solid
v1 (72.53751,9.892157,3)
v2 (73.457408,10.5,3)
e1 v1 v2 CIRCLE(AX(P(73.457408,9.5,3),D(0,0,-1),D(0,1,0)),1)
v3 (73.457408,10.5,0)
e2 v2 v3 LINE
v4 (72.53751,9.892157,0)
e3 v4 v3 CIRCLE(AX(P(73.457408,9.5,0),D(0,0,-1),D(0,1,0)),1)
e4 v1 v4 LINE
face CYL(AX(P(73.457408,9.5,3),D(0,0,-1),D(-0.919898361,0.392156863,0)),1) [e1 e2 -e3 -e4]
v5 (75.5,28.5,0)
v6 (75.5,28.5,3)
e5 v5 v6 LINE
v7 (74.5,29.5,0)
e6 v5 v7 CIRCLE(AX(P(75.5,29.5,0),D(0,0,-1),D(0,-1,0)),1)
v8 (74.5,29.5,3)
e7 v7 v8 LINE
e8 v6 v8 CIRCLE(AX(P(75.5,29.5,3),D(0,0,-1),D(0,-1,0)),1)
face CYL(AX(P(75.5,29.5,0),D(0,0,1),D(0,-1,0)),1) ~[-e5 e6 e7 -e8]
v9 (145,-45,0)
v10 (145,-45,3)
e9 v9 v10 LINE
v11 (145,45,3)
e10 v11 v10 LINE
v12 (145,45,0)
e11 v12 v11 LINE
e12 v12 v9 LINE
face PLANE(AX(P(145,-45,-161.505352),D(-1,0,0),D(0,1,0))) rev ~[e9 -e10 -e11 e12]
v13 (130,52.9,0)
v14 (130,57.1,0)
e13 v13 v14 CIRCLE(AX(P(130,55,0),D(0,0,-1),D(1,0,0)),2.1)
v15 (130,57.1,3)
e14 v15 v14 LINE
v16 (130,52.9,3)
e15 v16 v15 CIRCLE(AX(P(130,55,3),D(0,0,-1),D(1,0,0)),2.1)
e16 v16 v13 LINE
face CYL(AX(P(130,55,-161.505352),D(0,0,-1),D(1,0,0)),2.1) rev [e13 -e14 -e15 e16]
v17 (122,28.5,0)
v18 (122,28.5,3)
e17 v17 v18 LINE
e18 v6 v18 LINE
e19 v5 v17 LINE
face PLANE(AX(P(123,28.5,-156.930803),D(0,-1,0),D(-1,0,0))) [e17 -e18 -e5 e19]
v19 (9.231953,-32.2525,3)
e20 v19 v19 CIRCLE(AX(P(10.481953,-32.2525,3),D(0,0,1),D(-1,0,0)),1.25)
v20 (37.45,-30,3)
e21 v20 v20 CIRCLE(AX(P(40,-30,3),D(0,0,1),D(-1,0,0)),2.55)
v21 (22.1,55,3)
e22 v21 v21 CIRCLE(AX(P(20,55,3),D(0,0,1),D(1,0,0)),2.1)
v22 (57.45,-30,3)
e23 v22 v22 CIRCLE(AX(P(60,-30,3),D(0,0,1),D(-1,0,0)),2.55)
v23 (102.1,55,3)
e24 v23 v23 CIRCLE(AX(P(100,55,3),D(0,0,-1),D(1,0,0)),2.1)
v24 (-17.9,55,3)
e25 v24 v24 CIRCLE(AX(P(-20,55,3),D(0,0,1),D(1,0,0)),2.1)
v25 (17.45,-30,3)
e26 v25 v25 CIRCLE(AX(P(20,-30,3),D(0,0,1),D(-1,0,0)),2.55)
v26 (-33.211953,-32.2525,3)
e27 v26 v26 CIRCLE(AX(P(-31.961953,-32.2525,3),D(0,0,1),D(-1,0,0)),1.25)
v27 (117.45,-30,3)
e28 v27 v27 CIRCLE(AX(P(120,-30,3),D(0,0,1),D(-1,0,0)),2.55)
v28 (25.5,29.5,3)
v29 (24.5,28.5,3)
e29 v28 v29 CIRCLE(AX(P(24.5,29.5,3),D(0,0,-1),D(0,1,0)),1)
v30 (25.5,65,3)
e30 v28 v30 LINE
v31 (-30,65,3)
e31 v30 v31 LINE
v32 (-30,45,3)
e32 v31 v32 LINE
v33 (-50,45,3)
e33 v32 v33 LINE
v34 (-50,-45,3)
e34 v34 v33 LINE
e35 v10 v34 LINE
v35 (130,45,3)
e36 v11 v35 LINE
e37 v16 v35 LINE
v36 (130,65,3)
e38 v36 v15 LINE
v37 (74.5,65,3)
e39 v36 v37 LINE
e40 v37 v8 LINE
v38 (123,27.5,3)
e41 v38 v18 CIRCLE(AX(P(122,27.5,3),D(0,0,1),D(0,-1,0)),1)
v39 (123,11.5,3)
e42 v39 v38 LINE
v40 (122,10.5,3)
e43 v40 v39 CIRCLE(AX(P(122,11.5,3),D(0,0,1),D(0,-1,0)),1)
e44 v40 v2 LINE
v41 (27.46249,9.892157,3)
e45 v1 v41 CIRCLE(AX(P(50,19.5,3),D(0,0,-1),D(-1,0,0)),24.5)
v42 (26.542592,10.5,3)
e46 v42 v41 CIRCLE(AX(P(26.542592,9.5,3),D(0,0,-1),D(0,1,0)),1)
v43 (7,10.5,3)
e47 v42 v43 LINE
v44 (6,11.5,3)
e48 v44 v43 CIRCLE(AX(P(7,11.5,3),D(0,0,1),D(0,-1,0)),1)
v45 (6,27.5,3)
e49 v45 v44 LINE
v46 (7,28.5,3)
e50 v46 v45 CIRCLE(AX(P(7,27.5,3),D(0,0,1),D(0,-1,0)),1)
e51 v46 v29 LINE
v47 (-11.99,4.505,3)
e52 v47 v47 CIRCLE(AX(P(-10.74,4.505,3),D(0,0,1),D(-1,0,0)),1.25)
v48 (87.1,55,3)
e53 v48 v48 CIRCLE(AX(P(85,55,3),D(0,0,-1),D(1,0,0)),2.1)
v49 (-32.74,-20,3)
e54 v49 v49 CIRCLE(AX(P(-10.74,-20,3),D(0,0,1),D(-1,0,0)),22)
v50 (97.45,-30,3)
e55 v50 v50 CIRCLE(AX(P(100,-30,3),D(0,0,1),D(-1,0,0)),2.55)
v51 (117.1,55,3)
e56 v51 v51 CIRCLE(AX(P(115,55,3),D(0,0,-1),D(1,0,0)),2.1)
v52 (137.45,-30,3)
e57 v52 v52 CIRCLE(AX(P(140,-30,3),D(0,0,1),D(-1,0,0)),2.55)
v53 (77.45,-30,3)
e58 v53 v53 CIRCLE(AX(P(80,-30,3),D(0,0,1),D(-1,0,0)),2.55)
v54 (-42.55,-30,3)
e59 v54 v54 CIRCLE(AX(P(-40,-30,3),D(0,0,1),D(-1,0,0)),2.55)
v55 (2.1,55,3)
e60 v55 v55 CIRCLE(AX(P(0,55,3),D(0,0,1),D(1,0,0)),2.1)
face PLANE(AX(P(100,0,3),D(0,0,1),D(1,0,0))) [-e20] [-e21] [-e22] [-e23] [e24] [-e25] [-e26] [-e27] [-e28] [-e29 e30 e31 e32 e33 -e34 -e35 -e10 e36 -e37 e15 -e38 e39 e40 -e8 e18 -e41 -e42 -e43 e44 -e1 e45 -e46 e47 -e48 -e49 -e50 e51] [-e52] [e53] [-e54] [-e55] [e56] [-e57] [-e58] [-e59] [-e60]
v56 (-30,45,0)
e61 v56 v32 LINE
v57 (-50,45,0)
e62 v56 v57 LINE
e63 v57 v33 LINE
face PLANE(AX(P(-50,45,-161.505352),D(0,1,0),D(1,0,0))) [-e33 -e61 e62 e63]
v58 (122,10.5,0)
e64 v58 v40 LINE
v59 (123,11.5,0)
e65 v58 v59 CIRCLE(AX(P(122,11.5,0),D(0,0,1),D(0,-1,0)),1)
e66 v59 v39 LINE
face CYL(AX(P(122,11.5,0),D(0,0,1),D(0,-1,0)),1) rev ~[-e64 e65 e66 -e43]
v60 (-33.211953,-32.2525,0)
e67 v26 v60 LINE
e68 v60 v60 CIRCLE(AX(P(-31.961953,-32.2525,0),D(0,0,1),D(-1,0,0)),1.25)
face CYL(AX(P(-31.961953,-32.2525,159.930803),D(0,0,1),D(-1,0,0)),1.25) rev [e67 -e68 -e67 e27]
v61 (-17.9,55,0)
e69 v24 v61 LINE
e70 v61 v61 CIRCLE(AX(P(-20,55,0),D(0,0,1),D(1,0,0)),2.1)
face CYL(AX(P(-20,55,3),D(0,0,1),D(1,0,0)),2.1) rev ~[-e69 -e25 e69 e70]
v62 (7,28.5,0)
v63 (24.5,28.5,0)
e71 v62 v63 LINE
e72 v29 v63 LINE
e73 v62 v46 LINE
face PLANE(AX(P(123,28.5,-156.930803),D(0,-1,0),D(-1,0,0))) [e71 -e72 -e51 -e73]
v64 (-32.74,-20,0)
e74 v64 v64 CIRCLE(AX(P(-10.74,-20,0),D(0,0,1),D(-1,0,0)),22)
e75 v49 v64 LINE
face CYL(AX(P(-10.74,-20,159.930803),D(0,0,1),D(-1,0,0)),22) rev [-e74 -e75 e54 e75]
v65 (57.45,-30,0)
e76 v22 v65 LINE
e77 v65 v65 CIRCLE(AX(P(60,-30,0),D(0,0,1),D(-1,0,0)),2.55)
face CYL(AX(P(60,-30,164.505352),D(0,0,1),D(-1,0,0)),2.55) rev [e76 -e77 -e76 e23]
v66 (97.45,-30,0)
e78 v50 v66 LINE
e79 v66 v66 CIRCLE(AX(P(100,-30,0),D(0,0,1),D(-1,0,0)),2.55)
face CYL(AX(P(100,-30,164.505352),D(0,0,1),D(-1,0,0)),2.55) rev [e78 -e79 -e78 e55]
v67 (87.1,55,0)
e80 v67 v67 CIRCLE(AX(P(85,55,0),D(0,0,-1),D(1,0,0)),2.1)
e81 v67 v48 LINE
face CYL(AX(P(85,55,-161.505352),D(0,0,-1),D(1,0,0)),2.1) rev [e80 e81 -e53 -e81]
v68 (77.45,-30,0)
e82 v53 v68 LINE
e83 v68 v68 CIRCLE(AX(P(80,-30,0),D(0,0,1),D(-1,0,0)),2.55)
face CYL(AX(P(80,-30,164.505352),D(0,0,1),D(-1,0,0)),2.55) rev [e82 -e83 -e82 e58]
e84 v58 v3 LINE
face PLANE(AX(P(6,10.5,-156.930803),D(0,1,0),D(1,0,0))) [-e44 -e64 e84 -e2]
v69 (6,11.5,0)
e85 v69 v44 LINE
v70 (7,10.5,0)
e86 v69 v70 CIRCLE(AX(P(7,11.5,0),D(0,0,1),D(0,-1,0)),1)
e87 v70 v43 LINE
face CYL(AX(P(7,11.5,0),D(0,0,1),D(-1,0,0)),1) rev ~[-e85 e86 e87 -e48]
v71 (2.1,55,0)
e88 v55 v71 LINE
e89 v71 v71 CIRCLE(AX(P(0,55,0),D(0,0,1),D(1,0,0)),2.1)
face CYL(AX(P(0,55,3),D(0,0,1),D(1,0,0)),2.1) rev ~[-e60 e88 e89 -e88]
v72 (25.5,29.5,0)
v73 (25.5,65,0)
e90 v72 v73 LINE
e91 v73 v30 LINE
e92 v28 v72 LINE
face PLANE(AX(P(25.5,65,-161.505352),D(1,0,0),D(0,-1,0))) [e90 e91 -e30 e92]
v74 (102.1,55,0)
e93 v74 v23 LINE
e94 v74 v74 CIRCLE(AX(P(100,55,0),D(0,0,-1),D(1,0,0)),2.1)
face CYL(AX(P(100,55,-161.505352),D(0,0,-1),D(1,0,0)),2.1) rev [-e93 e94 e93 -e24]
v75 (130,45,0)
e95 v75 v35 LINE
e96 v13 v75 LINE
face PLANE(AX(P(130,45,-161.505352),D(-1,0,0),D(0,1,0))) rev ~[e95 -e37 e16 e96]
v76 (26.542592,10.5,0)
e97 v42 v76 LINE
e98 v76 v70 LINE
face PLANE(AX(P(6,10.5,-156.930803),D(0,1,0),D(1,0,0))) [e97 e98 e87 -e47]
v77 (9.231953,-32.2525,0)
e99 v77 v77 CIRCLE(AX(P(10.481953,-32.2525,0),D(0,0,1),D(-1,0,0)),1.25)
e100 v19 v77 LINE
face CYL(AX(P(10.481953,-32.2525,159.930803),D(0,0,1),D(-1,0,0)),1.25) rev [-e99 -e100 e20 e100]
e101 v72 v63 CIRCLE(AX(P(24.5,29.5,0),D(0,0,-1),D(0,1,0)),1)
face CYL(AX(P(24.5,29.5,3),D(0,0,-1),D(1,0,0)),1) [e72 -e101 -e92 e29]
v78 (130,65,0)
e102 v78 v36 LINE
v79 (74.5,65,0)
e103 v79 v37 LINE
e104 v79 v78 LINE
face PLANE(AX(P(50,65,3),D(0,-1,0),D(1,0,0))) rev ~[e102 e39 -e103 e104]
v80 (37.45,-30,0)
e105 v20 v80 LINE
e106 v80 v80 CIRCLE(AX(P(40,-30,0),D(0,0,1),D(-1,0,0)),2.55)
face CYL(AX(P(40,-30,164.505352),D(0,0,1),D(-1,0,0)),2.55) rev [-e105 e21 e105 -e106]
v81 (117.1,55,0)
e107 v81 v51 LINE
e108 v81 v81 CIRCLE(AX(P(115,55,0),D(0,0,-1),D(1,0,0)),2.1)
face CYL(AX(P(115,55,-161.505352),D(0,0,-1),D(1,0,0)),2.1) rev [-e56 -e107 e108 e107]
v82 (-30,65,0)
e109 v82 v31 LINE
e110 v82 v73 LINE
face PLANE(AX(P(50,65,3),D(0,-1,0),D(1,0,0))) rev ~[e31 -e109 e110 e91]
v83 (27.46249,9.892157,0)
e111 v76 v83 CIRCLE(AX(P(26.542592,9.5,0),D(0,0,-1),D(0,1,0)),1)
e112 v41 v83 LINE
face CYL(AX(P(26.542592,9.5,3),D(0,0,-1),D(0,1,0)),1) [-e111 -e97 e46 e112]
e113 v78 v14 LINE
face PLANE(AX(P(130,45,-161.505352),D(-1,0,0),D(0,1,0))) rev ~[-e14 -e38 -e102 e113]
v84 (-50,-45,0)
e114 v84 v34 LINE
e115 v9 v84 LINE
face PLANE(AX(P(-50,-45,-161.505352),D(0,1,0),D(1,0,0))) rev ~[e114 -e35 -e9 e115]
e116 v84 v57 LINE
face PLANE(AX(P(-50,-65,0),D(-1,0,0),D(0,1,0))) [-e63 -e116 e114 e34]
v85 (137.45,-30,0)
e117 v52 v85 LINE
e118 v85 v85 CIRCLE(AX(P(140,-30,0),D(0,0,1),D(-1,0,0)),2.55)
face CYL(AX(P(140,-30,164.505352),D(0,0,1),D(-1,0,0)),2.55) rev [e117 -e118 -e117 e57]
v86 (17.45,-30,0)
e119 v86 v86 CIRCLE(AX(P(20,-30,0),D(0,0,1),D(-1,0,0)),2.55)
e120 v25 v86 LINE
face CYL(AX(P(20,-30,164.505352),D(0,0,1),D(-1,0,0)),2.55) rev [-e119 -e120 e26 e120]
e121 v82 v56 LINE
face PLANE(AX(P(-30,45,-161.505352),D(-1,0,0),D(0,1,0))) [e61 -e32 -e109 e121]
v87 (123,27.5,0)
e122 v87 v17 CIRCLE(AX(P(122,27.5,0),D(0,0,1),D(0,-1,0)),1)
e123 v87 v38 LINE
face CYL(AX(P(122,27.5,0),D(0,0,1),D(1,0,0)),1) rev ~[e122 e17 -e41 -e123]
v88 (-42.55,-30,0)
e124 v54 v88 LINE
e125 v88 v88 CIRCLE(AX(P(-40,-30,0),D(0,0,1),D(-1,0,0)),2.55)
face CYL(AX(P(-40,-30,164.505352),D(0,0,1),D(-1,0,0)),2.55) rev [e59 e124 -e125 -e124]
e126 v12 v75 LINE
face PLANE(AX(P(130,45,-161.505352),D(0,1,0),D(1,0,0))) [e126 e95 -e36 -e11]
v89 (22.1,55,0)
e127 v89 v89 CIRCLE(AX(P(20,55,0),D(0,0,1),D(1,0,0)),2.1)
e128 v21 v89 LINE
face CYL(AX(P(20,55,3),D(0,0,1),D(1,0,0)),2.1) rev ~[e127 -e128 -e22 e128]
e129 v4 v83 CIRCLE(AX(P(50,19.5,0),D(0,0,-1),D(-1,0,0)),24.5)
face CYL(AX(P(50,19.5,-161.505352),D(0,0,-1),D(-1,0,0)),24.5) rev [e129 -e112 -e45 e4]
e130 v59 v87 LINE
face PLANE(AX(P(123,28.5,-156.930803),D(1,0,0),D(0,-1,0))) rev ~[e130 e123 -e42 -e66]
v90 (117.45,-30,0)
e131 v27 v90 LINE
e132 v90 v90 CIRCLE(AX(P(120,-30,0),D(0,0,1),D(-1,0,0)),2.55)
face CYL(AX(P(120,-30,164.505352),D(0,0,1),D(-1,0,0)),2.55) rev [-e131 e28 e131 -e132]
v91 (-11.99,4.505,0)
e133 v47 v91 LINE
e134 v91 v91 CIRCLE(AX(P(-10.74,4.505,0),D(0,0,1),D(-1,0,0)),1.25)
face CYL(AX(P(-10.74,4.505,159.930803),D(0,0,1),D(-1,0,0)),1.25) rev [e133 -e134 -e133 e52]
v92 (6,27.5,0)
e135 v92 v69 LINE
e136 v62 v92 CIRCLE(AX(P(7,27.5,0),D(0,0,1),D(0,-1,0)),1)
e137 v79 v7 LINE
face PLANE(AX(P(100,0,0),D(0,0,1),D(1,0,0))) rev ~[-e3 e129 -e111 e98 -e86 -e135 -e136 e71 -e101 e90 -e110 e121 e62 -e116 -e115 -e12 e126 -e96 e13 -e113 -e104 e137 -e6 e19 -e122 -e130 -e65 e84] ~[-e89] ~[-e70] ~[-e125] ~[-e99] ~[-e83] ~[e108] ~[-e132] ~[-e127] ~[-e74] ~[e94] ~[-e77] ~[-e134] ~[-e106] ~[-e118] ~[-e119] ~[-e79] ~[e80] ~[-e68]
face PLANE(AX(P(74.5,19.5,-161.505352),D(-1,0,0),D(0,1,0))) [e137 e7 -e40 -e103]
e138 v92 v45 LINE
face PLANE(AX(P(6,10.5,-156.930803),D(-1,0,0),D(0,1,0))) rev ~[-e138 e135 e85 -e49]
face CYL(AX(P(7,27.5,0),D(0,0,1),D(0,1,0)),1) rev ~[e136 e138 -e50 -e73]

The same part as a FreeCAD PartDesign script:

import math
import FreeCAD as App
import Part
import Sketcher

V = App.Vector
Q = App.Units.Quantity


def edges_at(feature, points):
    """Names of the edges that pass closest to the given points."""
    edges = feature.Shape.Edges
    near = lambda p: min(range(len(edges)), key=lambda i: edges[i].distToShape(Part.Vertex(*p))[0])
    return sorted({f"Edge{near(p) + 1}" for p in points})

doc = App.newDocument("Part")
body = doc.addObject("PartDesign::Body", "Body")

# Sketch on XY plane
sketch1 = body.newObject("Sketcher::SketchObject", "Sketch")
sketch1.AttachmentSupport = (doc.getObject("XY_Plane"), [""])
sketch1.MapMode = "FlatFace"
sketch1.addGeometry(Part.LineSegment(V(-50, 65, 0), V(-50, -65, 0)), False)
sketch1.addGeometry(Part.LineSegment(V(-50, -65, 0), V(50, -65, 0)), False)
sketch1.addGeometry(Part.LineSegment(V(50, -65, 0), V(50, 65, 0)), False)
sketch1.addGeometry(Part.LineSegment(V(50, 65, 0), V(-50, 65, 0)), False)
sketch1.addConstraint(Sketcher.Constraint("Coincident", 0, 2, 1, 1))
sketch1.addConstraint(Sketcher.Constraint("Coincident", 1, 2, 2, 1))
sketch1.addConstraint(Sketcher.Constraint("Coincident", 2, 2, 3, 1))
sketch1.addConstraint(Sketcher.Constraint("Coincident", 3, 2, 0, 1))
sketch1.addConstraint(Sketcher.Constraint("Vertical", 0))
sketch1.addConstraint(Sketcher.Constraint("Horizontal", 1))
sketch1.addConstraint(Sketcher.Constraint("Vertical", 2))
sketch1.addConstraint(Sketcher.Constraint("Horizontal", 3))
sketch1.addConstraint(Sketcher.Constraint("Symmetric", 0, 2, 2, 2, -1, 1))
sketch1.addConstraint(Sketcher.Constraint("DistanceX", 1, 1, 1, 2, Q("100 mm")))
sketch1.addConstraint(Sketcher.Constraint("DistanceY", 0, 2, 0, 1, Q("130 mm")))
pad1 = body.newObject("PartDesign::Pad", "Pad")
pad1.Profile = sketch1
pad1.Length = 3

# Sketch on XY plane
sketch2 = body.newObject("Sketcher::SketchObject", "Sketch001")
sketch2.AttachmentSupport = (doc.getObject("XY_Plane"), [""])
sketch2.MapMode = "FlatFace"
sketch2.AttachmentOffset = App.Placement(V(0, 0, 3), App.Rotation())
sketch2.addGeometry(Part.Circle(V(-40, 55, 0), V(0, 0, 1), 2.1), False)
sketch2.addGeometry(Part.Circle(V(-20, 55, 0), V(0, 0, 1), 2.1), False)
sketch2.addGeometry(Part.Circle(V(0, 55, 0), V(0, 0, 1), 2.1), False)
sketch2.addGeometry(Part.Circle(V(20, 55, 0), V(0, 0, 1), 2.1), False)
sketch2.addGeometry(Part.Circle(V(40, 55, 0), V(0, 0, 1), 2.1), False)
sketch2.addGeometry(Part.Circle(V(-40, -55, 0), V(0, 0, 1), 2.1), False)
sketch2.addGeometry(Part.Circle(V(40, -55, 0), V(0, 0, 1), 2.1), False)
sketch2.addGeometry(Part.Circle(V(20, -55, 0), V(0, 0, 1), 2.1), False)
sketch2.addGeometry(Part.Circle(V(0, -55, 0), V(0, 0, 1), 2.1), False)
sketch2.addGeometry(Part.Circle(V(-20, -55, 0), V(0, 0, 1), 2.1), False)
sketch2.addConstraint(Sketcher.Constraint("Equal", 0, 1))
sketch2.addConstraint(Sketcher.Constraint("Equal", 1, 2))
sketch2.addConstraint(Sketcher.Constraint("Equal", 2, 3))
sketch2.addConstraint(Sketcher.Constraint("Equal", 3, 4))
sketch2.addConstraint(Sketcher.Constraint("Equal", 4, 5))
sketch2.addConstraint(Sketcher.Constraint("Equal", 5, 6))
sketch2.addConstraint(Sketcher.Constraint("Equal", 6, 7))
sketch2.addConstraint(Sketcher.Constraint("Equal", 7, 8))
sketch2.addConstraint(Sketcher.Constraint("Equal", 8, 9))
sketch2.addConstraint(Sketcher.Constraint("Symmetric", 4, 3, 5, 3, -1, 1))
sketch2.addConstraint(Sketcher.Constraint("Symmetric", 0, 3, 6, 3, -1, 1))
sketch2.addConstraint(Sketcher.Constraint("Symmetric", 1, 3, 7, 3, -1, 1))
sketch2.addConstraint(Sketcher.Constraint("Symmetric", 2, 3, 8, 3, -1, 1))
sketch2.addConstraint(Sketcher.Constraint("Symmetric", 3, 3, 9, 3, -1, 1))
sketch2.addConstraint(Sketcher.Constraint("Symmetric", 1, 3, 3, 3, -2))
sketch2.addConstraint(Sketcher.Constraint("Symmetric", 0, 3, 4, 3, -2))
sketch2.addConstraint(Sketcher.Constraint("PointOnObject", 2, 3, -2))
sketch2.addConstraint(Sketcher.Constraint("Horizontal", 0, 3, 1, 3))
sketch2.addConstraint(Sketcher.Constraint("Horizontal", 1, 3, 2, 3))
sketch2.addConstraint(Sketcher.Constraint("Diameter", 0, Q("4.2 mm")))
sketch2.addConstraint(Sketcher.Constraint("DistanceX", 0, 3, -1, 1, Q("40 mm")))
sketch2.addConstraint(Sketcher.Constraint("DistanceY", -1, 1, 0, 3, Q("55 mm")))
sketch2.addConstraint(Sketcher.Constraint("DistanceX", 1, 3, -1, 1, Q("20 mm")))
pocket1 = body.newObject("PartDesign::Pocket", "Pocket")
pocket1.Profile = sketch2
pocket1.Type = "ThroughAll"

# Sketch on XY plane
sketch3 = body.newObject("Sketcher::SketchObject", "Sketch002")
sketch3.AttachmentSupport = (doc.getObject("XY_Plane"), [""])
sketch3.MapMode = "FlatFace"
sketch3.AttachmentOffset = App.Placement(V(0, 0, 3), App.Rotation())
sketch3.addGeometry(Part.LineSegment(V(50, 65, 0), V(50, -65, 0)), False)
sketch3.addGeometry(Part.LineSegment(V(50, -65, 0), V(150, -65, 0)), False)
sketch3.addGeometry(Part.LineSegment(V(150, -65, 0), V(150, 65, 0)), False)
sketch3.addGeometry(Part.LineSegment(V(150, 65, 0), V(50, 65, 0)), False)
sketch3.addConstraint(Sketcher.Constraint("Coincident", 0, 2, 1, 1))
sketch3.addConstraint(Sketcher.Constraint("Coincident", 1, 2, 2, 1))
sketch3.addConstraint(Sketcher.Constraint("Coincident", 2, 2, 3, 1))
sketch3.addConstraint(Sketcher.Constraint("Coincident", 3, 2, 0, 1))
sketch3.addConstraint(Sketcher.Constraint("Vertical", 0))
sketch3.addConstraint(Sketcher.Constraint("Horizontal", 1))
sketch3.addConstraint(Sketcher.Constraint("Vertical", 2))
sketch3.addConstraint(Sketcher.Constraint("Horizontal", 3))
sketch3.addConstraint(Sketcher.Constraint("DistanceX", 1, 1, 1, 2, Q("100 mm")))
sketch3.addConstraint(Sketcher.Constraint("DistanceY", 0, 2, 0, 1, Q("130 mm")))
sketch3.addConstraint(Sketcher.Constraint("DistanceX", -1, 1, 0, 2, Q("50 mm")))
sketch3.addConstraint(Sketcher.Constraint("DistanceY", 0, 2, -1, 1, Q("65 mm")))
pad2 = body.newObject("PartDesign::Pad", "Pad001")
pad2.Profile = sketch3
pad2.Length = 3
pad2.Reversed = True

# Sketch on XY plane
sketch4 = body.newObject("Sketcher::SketchObject", "Sketch003")
sketch4.AttachmentSupport = (doc.getObject("XY_Plane"), [""])
sketch4.MapMode = "FlatFace"
sketch4.AttachmentOffset = App.Placement(V(0, 0, 3), App.Rotation())
sketch4.addGeometry(Part.Circle(V(55, 55, 0), V(0, 0, 1), 2.1), False)
sketch4.addGeometry(Part.Circle(V(70, 55, 0), V(0, 0, 1), 2.1), False)
sketch4.addGeometry(Part.Circle(V(85, 55, 0), V(0, 0, 1), 2.1), False)
sketch4.addGeometry(Part.Circle(V(100, 55, 0), V(0, 0, 1), 2.1), False)
sketch4.addGeometry(Part.Circle(V(115, 55, 0), V(0, 0, 1), 2.1), False)
sketch4.addGeometry(Part.Circle(V(130, 55, 0), V(0, 0, 1), 2.1), False)
sketch4.addGeometry(Part.Circle(V(145, 55, 0), V(0, 0, 1), 2.1), False)
sketch4.addGeometry(Part.Circle(V(145, -55, 0), V(0, 0, 1), 2.1), False)
sketch4.addGeometry(Part.Circle(V(130, -55, 0), V(0, 0, 1), 2.1), False)
sketch4.addGeometry(Part.Circle(V(115, -55, 0), V(0, 0, 1), 2.1), False)
sketch4.addGeometry(Part.Circle(V(100, -55, 0), V(0, 0, 1), 2.1), False)
sketch4.addGeometry(Part.Circle(V(85, -55, 0), V(0, 0, 1), 2.1), False)
sketch4.addGeometry(Part.Circle(V(70, -55, 0), V(0, 0, 1), 2.1), False)
sketch4.addGeometry(Part.Circle(V(55, -55, 0), V(0, 0, 1), 2.1), False)
sketch4.addConstraint(Sketcher.Constraint("Equal", 0, 1))
sketch4.addConstraint(Sketcher.Constraint("Equal", 1, 2))
sketch4.addConstraint(Sketcher.Constraint("Equal", 2, 3))
sketch4.addConstraint(Sketcher.Constraint("Equal", 3, 4))
sketch4.addConstraint(Sketcher.Constraint("Equal", 4, 5))
sketch4.addConstraint(Sketcher.Constraint("Equal", 5, 6))
sketch4.addConstraint(Sketcher.Constraint("Equal", 6, 7))
sketch4.addConstraint(Sketcher.Constraint("Equal", 7, 8))
sketch4.addConstraint(Sketcher.Constraint("Equal", 8, 9))
sketch4.addConstraint(Sketcher.Constraint("Equal", 9, 10))
sketch4.addConstraint(Sketcher.Constraint("Equal", 10, 11))
sketch4.addConstraint(Sketcher.Constraint("Equal", 11, 12))
sketch4.addConstraint(Sketcher.Constraint("Equal", 12, 13))
sketch4.addConstraint(Sketcher.Constraint("Symmetric", 6, 3, 7, 3, -1))
sketch4.addConstraint(Sketcher.Constraint("Symmetric", 5, 3, 8, 3, -1))
sketch4.addConstraint(Sketcher.Constraint("Symmetric", 4, 3, 9, 3, -1))
sketch4.addConstraint(Sketcher.Constraint("Symmetric", 3, 3, 10, 3, -1))
sketch4.addConstraint(Sketcher.Constraint("Symmetric", 2, 3, 11, 3, -1))
sketch4.addConstraint(Sketcher.Constraint("Symmetric", 1, 3, 12, 3, -1))
sketch4.addConstraint(Sketcher.Constraint("Symmetric", 0, 3, 13, 3, -1))
sketch4.addConstraint(Sketcher.Constraint("Horizontal", 0, 3, 1, 3))
sketch4.addConstraint(Sketcher.Constraint("Horizontal", 1, 3, 2, 3))
sketch4.addConstraint(Sketcher.Constraint("Horizontal", 2, 3, 3, 3))
sketch4.addConstraint(Sketcher.Constraint("Horizontal", 3, 3, 4, 3))
sketch4.addConstraint(Sketcher.Constraint("Horizontal", 4, 3, 5, 3))
sketch4.addConstraint(Sketcher.Constraint("Horizontal", 5, 3, 6, 3))
sketch4.addConstraint(Sketcher.Constraint("Diameter", 0, Q("4.2 mm")))
sketch4.addConstraint(Sketcher.Constraint("DistanceX", -1, 1, 0, 3, Q("55 mm")))
sketch4.addConstraint(Sketcher.Constraint("DistanceY", -1, 1, 0, 3, Q("55 mm")))
sketch4.addConstraint(Sketcher.Constraint("DistanceX", -1, 1, 1, 3, Q("70 mm")))
sketch4.addConstraint(Sketcher.Constraint("DistanceX", -1, 1, 2, 3, Q("85 mm")))
sketch4.addConstraint(Sketcher.Constraint("DistanceX", -1, 1, 3, 3, Q("100 mm")))
sketch4.addConstraint(Sketcher.Constraint("DistanceX", -1, 1, 4, 3, Q("115 mm")))
sketch4.addConstraint(Sketcher.Constraint("DistanceX", -1, 1, 5, 3, Q("130 mm")))
sketch4.addConstraint(Sketcher.Constraint("DistanceX", -1, 1, 6, 3, Q("145 mm")))
pocket2 = body.newObject("PartDesign::Pocket", "Pocket001")
pocket2.Profile = sketch4
pocket2.Type = "ThroughAll"
pocket2.Midplane = True

# Sketch on XY plane
sketch5 = body.newObject("Sketcher::SketchObject", "Sketch004")
sketch5.AttachmentSupport = (doc.getObject("XY_Plane"), [""])
sketch5.MapMode = "FlatFace"
sketch5.addGeometry(Part.Circle(V(140, -30, 0), V(0, 0, 1), 2.5), False)
sketch5.addGeometry(Part.Circle(V(120, -30, 0), V(0, 0, 1), 2.5), False)
sketch5.addGeometry(Part.Circle(V(100, -30, 0), V(0, 0, 1), 2.5), False)
sketch5.addGeometry(Part.Circle(V(80, -30, 0), V(0, 0, 1), 2.5), False)
sketch5.addGeometry(Part.Circle(V(60, -30, 0), V(0, 0, 1), 2.5), False)
sketch5.addGeometry(Part.Circle(V(40, -30, 0), V(0, 0, 1), 2.5), False)
sketch5.addGeometry(Part.Circle(V(20, -30, 0), V(0, 0, 1), 2.5), False)
sketch5.addGeometry(Part.Circle(V(0, -30, 0), V(0, 0, 1), 2.5), False)
sketch5.addGeometry(Part.Circle(V(-20, -30, 0), V(0, 0, 1), 2.5), False)
sketch5.addGeometry(Part.Circle(V(-40, -30, 0), V(0, 0, 1), 2.5), False)
sketch5.addConstraint(Sketcher.Constraint("Equal", 0, 1))
sketch5.addConstraint(Sketcher.Constraint("Equal", 1, 2))
sketch5.addConstraint(Sketcher.Constraint("Equal", 2, 3))
sketch5.addConstraint(Sketcher.Constraint("Equal", 3, 4))
sketch5.addConstraint(Sketcher.Constraint("Equal", 4, 5))
sketch5.addConstraint(Sketcher.Constraint("Equal", 5, 6))
sketch5.addConstraint(Sketcher.Constraint("Equal", 6, 7))
sketch5.addConstraint(Sketcher.Constraint("Equal", 7, 8))
sketch5.addConstraint(Sketcher.Constraint("Equal", 8, 9))
sketch5.addConstraint(Sketcher.Constraint("Symmetric", 6, 3, 8, 3, -2))
sketch5.addConstraint(Sketcher.Constraint("Symmetric", 5, 3, 9, 3, -2))
sketch5.addConstraint(Sketcher.Constraint("PointOnObject", 7, 3, -2))
sketch5.addConstraint(Sketcher.Constraint("Horizontal", 0, 3, 1, 3))
sketch5.addConstraint(Sketcher.Constraint("Horizontal", 1, 3, 2, 3))
sketch5.addConstraint(Sketcher.Constraint("Horizontal", 2, 3, 3, 3))
sketch5.addConstraint(Sketcher.Constraint("Horizontal", 3, 3, 4, 3))
sketch5.addConstraint(Sketcher.Constraint("Horizontal", 4, 3, 5, 3))
sketch5.addConstraint(Sketcher.Constraint("Horizontal", 5, 3, 6, 3))
sketch5.addConstraint(Sketcher.Constraint("Horizontal", 6, 3, 7, 3))
sketch5.addConstraint(Sketcher.Constraint("Diameter", 0, Q("5.1 mm")))
sketch5.addConstraint(Sketcher.Constraint("DistanceX", -1, 1, 0, 3, Q("140 mm")))
sketch5.addConstraint(Sketcher.Constraint("DistanceY", 0, 3, -1, 1, Q("30 mm")))
sketch5.addConstraint(Sketcher.Constraint("DistanceX", -1, 1, 1, 3, Q("120 mm")))
sketch5.addConstraint(Sketcher.Constraint("DistanceX", -1, 1, 2, 3, Q("100 mm")))
sketch5.addConstraint(Sketcher.Constraint("DistanceX", -1, 1, 3, 3, Q("80 mm")))
sketch5.addConstraint(Sketcher.Constraint("DistanceX", -1, 1, 4, 3, Q("60 mm")))
sketch5.addConstraint(Sketcher.Constraint("DistanceX", -1, 1, 5, 3, Q("40 mm")))
sketch5.addConstraint(Sketcher.Constraint("DistanceX", -1, 1, 6, 3, Q("20 mm")))
pocket3 = body.newObject("PartDesign::Pocket", "Pocket002")
pocket3.Profile = sketch5
pocket3.Type = "ThroughAll"
pocket3.Midplane = True

# Sketch on XY plane
sketch6 = body.newObject("Sketcher::SketchObject", "Sketch005")
sketch6.AttachmentSupport = (doc.getObject("XY_Plane"), [""])
sketch6.MapMode = "FlatFace"
sketch6.AttachmentOffset = App.Placement(V(0, 0, 3), App.Rotation())
sketch6.addGeometry(Part.LineSegment(V(74, 20, 0), V(74, 65, 0)), False)
sketch6.addGeometry(Part.LineSegment(V(74, 65, 0), V(26, 65, 0)), False)
sketch6.addGeometry(Part.LineSegment(V(26, 65, 0), V(26, 20, 0)), False)
sketch6.addGeometry(Part.ArcOfCircle(Part.Circle(V(50, 20, 0), V(0, 0, 1), 24), math.radians(180), math.radians(360)), False)
sketch6.addConstraint(Sketcher.Constraint("Coincident", 0, 2, 1, 1))
sketch6.addConstraint(Sketcher.Constraint("Coincident", 1, 2, 2, 1))
sketch6.addConstraint(Sketcher.Constraint("Tangent", 2, 2, 3, 1))
sketch6.addConstraint(Sketcher.Constraint("Tangent", 3, 2, 0, 1))
sketch6.addConstraint(Sketcher.Constraint("Vertical", 0))
sketch6.addConstraint(Sketcher.Constraint("Horizontal", 1))
sketch6.addConstraint(Sketcher.Constraint("Vertical", 2))
sketch6.addConstraint(Sketcher.Constraint("Radius", 3, Q("24.5 mm")))
sketch6.addConstraint(Sketcher.Constraint("DistanceY", 0, 1, 0, 2, Q("45.5 mm")))
sketch6.addConstraint(Sketcher.Constraint("DistanceX", -1, 1, 3, 3, Q("50 mm")))
sketch6.addConstraint(Sketcher.Constraint("DistanceY", -1, 1, 0, 2, Q("65 mm")))
pocket4 = body.newObject("PartDesign::Pocket", "Pocket003")
pocket4.Profile = sketch6
pocket4.Type = "ThroughAll"
pocket4.Midplane = True

# Sketch on XY plane
sketch7 = body.newObject("Sketcher::SketchObject", "Sketch006")
sketch7.AttachmentSupport = (doc.getObject("XY_Plane"), [""])
sketch7.MapMode = "FlatFace"
sketch7.AttachmentOffset = App.Placement(V(0, 0, 3), App.Rotation())
sketch7.addGeometry(Part.LineSegment(V(-50, 65, 0), V(-50, 45, 0)), False)
sketch7.addGeometry(Part.LineSegment(V(-50, 45, 0), V(-30, 45, 0)), False)
sketch7.addGeometry(Part.LineSegment(V(-30, 45, 0), V(-30, 65, 0)), False)
sketch7.addGeometry(Part.LineSegment(V(-30, 65, 0), V(-50, 65, 0)), False)
sketch7.addGeometry(Part.LineSegment(V(130, 65, 0), V(130, 45, 0)), False)
sketch7.addGeometry(Part.LineSegment(V(130, 45, 0), V(150, 45, 0)), False)
sketch7.addGeometry(Part.LineSegment(V(150, 45, 0), V(150, 65, 0)), False)
sketch7.addGeometry(Part.LineSegment(V(150, 65, 0), V(130, 65, 0)), False)
sketch7.addConstraint(Sketcher.Constraint("Coincident", 0, 2, 1, 1))
sketch7.addConstraint(Sketcher.Constraint("Coincident", 1, 2, 2, 1))
sketch7.addConstraint(Sketcher.Constraint("Coincident", 2, 2, 3, 1))
sketch7.addConstraint(Sketcher.Constraint("Coincident", 3, 2, 0, 1))
sketch7.addConstraint(Sketcher.Constraint("Coincident", 4, 2, 5, 1))
sketch7.addConstraint(Sketcher.Constraint("Coincident", 5, 2, 6, 1))
sketch7.addConstraint(Sketcher.Constraint("Coincident", 6, 2, 7, 1))
sketch7.addConstraint(Sketcher.Constraint("Coincident", 7, 2, 4, 1))
sketch7.addConstraint(Sketcher.Constraint("Vertical", 0))
sketch7.addConstraint(Sketcher.Constraint("Horizontal", 1))
sketch7.addConstraint(Sketcher.Constraint("Vertical", 2))
sketch7.addConstraint(Sketcher.Constraint("Horizontal", 3))
sketch7.addConstraint(Sketcher.Constraint("Vertical", 4))
sketch7.addConstraint(Sketcher.Constraint("Horizontal", 5))
sketch7.addConstraint(Sketcher.Constraint("Vertical", 6))
sketch7.addConstraint(Sketcher.Constraint("Horizontal", 7))
sketch7.addConstraint(Sketcher.Constraint("Horizontal", 1, 2, 4, 2))
sketch7.addConstraint(Sketcher.Constraint("Horizontal", 3, 2, 6, 2))
sketch7.addConstraint(Sketcher.Constraint("Equal", 3, 5))
sketch7.addConstraint(Sketcher.Constraint("Equal", 7, 0))
sketch7.addConstraint(Sketcher.Constraint("DistanceX", 1, 1, 1, 2, Q("20 mm")))
sketch7.addConstraint(Sketcher.Constraint("DistanceX", 0, 2, -1, 1, Q("50 mm")))
sketch7.addConstraint(Sketcher.Constraint("DistanceY", -1, 1, 0, 2, Q("45 mm")))
sketch7.addConstraint(Sketcher.Constraint("DistanceX", -1, 1, 4, 2, Q("130 mm")))
pocket5 = body.newObject("PartDesign::Pocket", "Pocket004")
pocket5.Profile = sketch7
pocket5.Type = "ThroughAll"
pocket5.Midplane = True

# Sketch on XY plane
sketch8 = body.newObject("Sketcher::SketchObject", "Sketch007")
sketch8.AttachmentSupport = (doc.getObject("XY_Plane"), [""])
sketch8.MapMode = "FlatFace"
sketch8.AttachmentOffset = App.Placement(V(0, 0, 3), App.Rotation())
sketch8.addGeometry(Part.LineSegment(V(-50, -45, 0), V(-50, -65, 0)), False)
sketch8.addGeometry(Part.LineSegment(V(-50, -65, 0), V(150, -65, 0)), False)
sketch8.addGeometry(Part.LineSegment(V(150, -65, 0), V(150, -45, 0)), False)
sketch8.addGeometry(Part.LineSegment(V(150, -45, 0), V(-50, -45, 0)), False)
sketch8.addConstraint(Sketcher.Constraint("Coincident", 0, 2, 1, 1))
sketch8.addConstraint(Sketcher.Constraint("Coincident", 1, 2, 2, 1))
sketch8.addConstraint(Sketcher.Constraint("Coincident", 2, 2, 3, 1))
sketch8.addConstraint(Sketcher.Constraint("Coincident", 3, 2, 0, 1))
sketch8.addConstraint(Sketcher.Constraint("Vertical", 0))
sketch8.addConstraint(Sketcher.Constraint("Horizontal", 1))
sketch8.addConstraint(Sketcher.Constraint("Vertical", 2))
sketch8.addConstraint(Sketcher.Constraint("Horizontal", 3))
sketch8.addConstraint(Sketcher.Constraint("DistanceX", 1, 1, 1, 2, Q("200 mm")))
sketch8.addConstraint(Sketcher.Constraint("DistanceY", 0, 2, 0, 1, Q("20 mm")))
sketch8.addConstraint(Sketcher.Constraint("DistanceX", 0, 2, -1, 1, Q("50 mm")))
sketch8.addConstraint(Sketcher.Constraint("DistanceY", 0, 2, -1, 1, Q("65 mm")))
pocket6 = body.newObject("PartDesign::Pocket", "Pocket005")
pocket6.Profile = sketch8
pocket6.Type = "ThroughAll"
pocket6.Midplane = True

# Sketch on XY plane
sketch9 = body.newObject("Sketcher::SketchObject", "Sketch008")
sketch9.AttachmentSupport = (doc.getObject("XY_Plane"), [""])
sketch9.MapMode = "FlatFace"
sketch9.AttachmentOffset = App.Placement(V(0, 0, 3), App.Rotation())
sketch9.addGeometry(Part.LineSegment(V(145, 45, 0), V(145, -45, 0)), False)
sketch9.addGeometry(Part.LineSegment(V(145, -45, 0), V(150, -45, 0)), False)
sketch9.addGeometry(Part.LineSegment(V(150, -45, 0), V(150, 45, 0)), False)
sketch9.addGeometry(Part.LineSegment(V(150, 45, 0), V(145, 45, 0)), False)
sketch9.addConstraint(Sketcher.Constraint("Coincident", 0, 2, 1, 1))
sketch9.addConstraint(Sketcher.Constraint("Coincident", 1, 2, 2, 1))
sketch9.addConstraint(Sketcher.Constraint("Coincident", 2, 2, 3, 1))
sketch9.addConstraint(Sketcher.Constraint("Coincident", 3, 2, 0, 1))
sketch9.addConstraint(Sketcher.Constraint("Vertical", 0))
sketch9.addConstraint(Sketcher.Constraint("Horizontal", 1))
sketch9.addConstraint(Sketcher.Constraint("Vertical", 2))
sketch9.addConstraint(Sketcher.Constraint("Horizontal", 3))
sketch9.addConstraint(Sketcher.Constraint("DistanceX", 1, 1, 1, 2, Q("5 mm")))
sketch9.addConstraint(Sketcher.Constraint("DistanceY", 0, 2, 0, 1, Q("90 mm")))
sketch9.addConstraint(Sketcher.Constraint("DistanceX", -1, 1, 0, 2, Q("145 mm")))
sketch9.addConstraint(Sketcher.Constraint("DistanceY", 0, 2, -1, 1, Q("45 mm")))
pocket7 = body.newObject("PartDesign::Pocket", "Pocket006")
pocket7.Profile = sketch9
pocket7.Type = "ThroughAll"
pocket7.Midplane = True

# Sketch on XY plane
sketch10 = body.newObject("Sketcher::SketchObject", "Sketch009")
sketch10.AttachmentSupport = (doc.getObject("XY_Plane"), [""])
sketch10.MapMode = "FlatFace"
sketch10.addGeometry(Part.Circle(V(-10.7, 4.5, 0), V(0, 0, 1), 1.2), False)
sketch10.addGeometry(Part.Circle(V(-32, -32.3, 0), V(0, 0, 1), 1.2), False)
sketch10.addGeometry(Part.Circle(V(10.5, -32.3, 0), V(0, 0, 1), 1.2), False)
sketch10.addGeometry(Part.Circle(V(-10.7, -20, 0), V(0, 0, 1), 22), False)
sketch10.addConstraint(Sketcher.Constraint("Equal", 0, 1))
sketch10.addConstraint(Sketcher.Constraint("Equal", 1, 2))
sketch10.addConstraint(Sketcher.Constraint("Horizontal", 1, 3, 2, 3))
sketch10.addConstraint(Sketcher.Constraint("Vertical", 0, 3, 3, 3))
sketch10.addConstraint(Sketcher.Constraint("Diameter", 3, Q("44 mm")))
sketch10.addConstraint(Sketcher.Constraint("Diameter", 0, Q("2.5 mm")))
sketch10.addConstraint(Sketcher.Constraint("DistanceY", 3, 3, -1, 1, Q("20 mm")))
sketch10.addConstraint(Sketcher.Constraint("DistanceX", 0, 3, -1, 1, Q("10.74 mm")))
sketch10.addConstraint(Sketcher.Constraint("DistanceY", -1, 1, 0, 3, Q("4.505 mm")))
sketch10.addConstraint(Sketcher.Constraint("DistanceY", 1, 3, -1, 1, Q("32.2525 mm")))
sketch10.addConstraint(Sketcher.Constraint("DistanceX", 1, 3, -1, 1, Q("31.961953 mm")))
sketch10.addConstraint(Sketcher.Constraint("DistanceX", -1, 1, 2, 3, Q("10.481953 mm")))
pocket8 = body.newObject("PartDesign::Pocket", "Pocket007")
pocket8.Profile = sketch10
pocket8.Type = "ThroughAll"
pocket8.Midplane = True

# Sketch on XY plane
sketch11 = body.newObject("Sketcher::SketchObject", "Sketch010")
sketch11.AttachmentSupport = (doc.getObject("XY_Plane"), [""])
sketch11.MapMode = "FlatFace"
sketch11.AttachmentOffset = App.Placement(V(0, 0, 3), App.Rotation())
sketch11.addGeometry(Part.LineSegment(V(6, 28, 0), V(6, 10, 0)), False)
sketch11.addGeometry(Part.LineSegment(V(6, 10, 0), V(123, 10, 0)), False)
sketch11.addGeometry(Part.LineSegment(V(123, 10, 0), V(123, 28, 0)), False)
sketch11.addGeometry(Part.LineSegment(V(123, 28, 0), V(6, 28, 0)), False)
sketch11.addConstraint(Sketcher.Constraint("Coincident", 0, 2, 1, 1))
sketch11.addConstraint(Sketcher.Constraint("Coincident", 1, 2, 2, 1))
sketch11.addConstraint(Sketcher.Constraint("Coincident", 2, 2, 3, 1))
sketch11.addConstraint(Sketcher.Constraint("Coincident", 3, 2, 0, 1))
sketch11.addConstraint(Sketcher.Constraint("Vertical", 0))
sketch11.addConstraint(Sketcher.Constraint("Horizontal", 1))
sketch11.addConstraint(Sketcher.Constraint("Vertical", 2))
sketch11.addConstraint(Sketcher.Constraint("Horizontal", 3))
sketch11.addConstraint(Sketcher.Constraint("DistanceX", 1, 1, 1, 2, Q("117 mm")))
sketch11.addConstraint(Sketcher.Constraint("DistanceY", 0, 2, 0, 1, Q("18 mm")))
sketch11.addConstraint(Sketcher.Constraint("DistanceX", -1, 1, 0, 2, Q("6 mm")))
sketch11.addConstraint(Sketcher.Constraint("DistanceY", -1, 1, 0, 2, Q("10.5 mm")))
pocket9 = body.newObject("PartDesign::Pocket", "Pocket008")
pocket9.Profile = sketch11
pocket9.Type = "ThroughAll"
pocket9.Midplane = True
doc.recompute()

fillet = body.newObject("PartDesign::Fillet", "Fillet")
fillet.Base = (pocket9, edges_at(pocket9, [
    (74.5, 28.5, 1.5),
    (27.213, 10.5, 1.5),
    (72.787, 10.5, 1.5),
    (123, 10.5, 1.5),
    (25.5, 28.5, 1.5),
    (6, 28.5, 1.5),
    (6, 10.5, 1.5),
    (123, 28.5, 1.5),
]))
fillet.Radius = 1

doc.recompute()
